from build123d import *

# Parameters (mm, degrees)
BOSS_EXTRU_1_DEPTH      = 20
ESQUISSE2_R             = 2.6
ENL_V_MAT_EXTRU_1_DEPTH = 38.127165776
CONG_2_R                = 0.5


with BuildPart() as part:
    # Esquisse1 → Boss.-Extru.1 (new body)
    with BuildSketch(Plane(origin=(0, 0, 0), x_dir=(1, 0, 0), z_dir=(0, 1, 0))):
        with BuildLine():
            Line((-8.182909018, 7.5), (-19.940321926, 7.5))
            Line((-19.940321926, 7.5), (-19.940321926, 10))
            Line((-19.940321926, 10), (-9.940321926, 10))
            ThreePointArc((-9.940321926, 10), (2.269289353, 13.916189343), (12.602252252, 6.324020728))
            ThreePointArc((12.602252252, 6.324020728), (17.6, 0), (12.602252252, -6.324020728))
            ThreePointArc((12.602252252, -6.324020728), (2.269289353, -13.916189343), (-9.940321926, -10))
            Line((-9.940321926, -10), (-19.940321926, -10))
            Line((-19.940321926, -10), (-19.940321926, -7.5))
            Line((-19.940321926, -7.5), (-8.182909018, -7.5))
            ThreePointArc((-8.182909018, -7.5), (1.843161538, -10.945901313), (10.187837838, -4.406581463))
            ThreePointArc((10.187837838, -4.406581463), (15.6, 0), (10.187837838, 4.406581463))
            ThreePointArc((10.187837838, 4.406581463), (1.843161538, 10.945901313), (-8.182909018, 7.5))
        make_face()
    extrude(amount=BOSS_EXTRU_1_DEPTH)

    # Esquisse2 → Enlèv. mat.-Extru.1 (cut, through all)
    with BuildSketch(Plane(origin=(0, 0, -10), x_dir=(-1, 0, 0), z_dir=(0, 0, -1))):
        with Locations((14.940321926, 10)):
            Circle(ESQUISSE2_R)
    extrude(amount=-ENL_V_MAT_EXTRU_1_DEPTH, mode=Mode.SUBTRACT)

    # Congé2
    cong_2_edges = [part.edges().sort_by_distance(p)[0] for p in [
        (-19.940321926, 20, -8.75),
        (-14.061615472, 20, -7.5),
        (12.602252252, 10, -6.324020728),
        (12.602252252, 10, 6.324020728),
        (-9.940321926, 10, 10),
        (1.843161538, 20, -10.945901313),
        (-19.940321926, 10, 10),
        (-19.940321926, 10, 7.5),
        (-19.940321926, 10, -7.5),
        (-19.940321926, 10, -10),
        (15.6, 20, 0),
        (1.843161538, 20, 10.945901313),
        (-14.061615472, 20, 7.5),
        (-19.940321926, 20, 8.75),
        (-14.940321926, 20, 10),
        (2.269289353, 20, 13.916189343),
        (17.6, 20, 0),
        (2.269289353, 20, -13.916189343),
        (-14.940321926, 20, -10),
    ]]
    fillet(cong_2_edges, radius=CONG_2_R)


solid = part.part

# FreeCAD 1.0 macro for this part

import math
import FreeCAD as App
import Part
import Sketcher


def edges_at(feature, points):
    """Names of the edges that pass closest to the given points."""
    edges = feature.Shape.Edges
    near = lambda p: min(range(len(edges)), key=lambda i: edges[i].distToShape(Part.Vertex(*p))[0])
    return sorted({f"Edge{near(p) + 1}" for p in points})

doc = App.newDocument("Part")
body = doc.addObject("PartDesign::Body", "Body")

# Sketch on XZ plane
sketch1 = doc.addObject("Sketcher::SketchObject", "Sketch")
body.addObject(sketch1)
sketch1.AttachmentSupport = (doc.XZ_Plane, [""])
sketch1.MapMode = "FlatFace"
sketch1.addGeometry(Part.LineSegment(App.Vector(-19.940322, -7.5, 0), App.Vector(-8.182909, -7.5, 0)), False)
sketch1.addGeometry(Part.ArcOfCircle(Part.Circle(App.Vector(0, 0, 0), App.Vector(0, 0, 1), 11.1), math.radians(-137.493358), math.radians(-23.390101)), False)
sketch1.addGeometry(Part.ArcOfCircle(Part.Circle(App.Vector(11.1, 0, 0), App.Vector(0, 0, 1), 4.5), math.radians(-101.69505), math.radians(101.69505)), False)
sketch1.addGeometry(Part.ArcOfCircle(Part.Circle(App.Vector(0, 0, 0), App.Vector(0, 0, 1), 11.1), math.radians(23.390101), math.radians(137.493358)), False)
sketch1.addGeometry(Part.LineSegment(App.Vector(-8.182909, 7.5, 0), App.Vector(-19.940322, 7.5, 0)), False)
sketch1.addGeometry(Part.LineSegment(App.Vector(-19.940322, 7.5, 0), App.Vector(-19.940322, 10, 0)), False)
sketch1.addGeometry(Part.LineSegment(App.Vector(-19.940322, 10, 0), App.Vector(-9.940322, 10, 0)), False)
sketch1.addGeometry(Part.ArcOfCircle(Part.Circle(App.Vector(0, 0, 0), App.Vector(0, 0, 1), 14.1), math.radians(26.648262), math.radians(134.828524)), False)
sketch1.addGeometry(Part.ArcOfCircle(Part.Circle(App.Vector(11.1, 0, 0), App.Vector(0, 0, 1), 6.5), math.radians(-76.637232), math.radians(76.637232)), False)
sketch1.addGeometry(Part.ArcOfCircle(Part.Circle(App.Vector(0, 0, 0), App.Vector(0, 0, 1), 14.1), math.radians(-134.828524), math.radians(-26.648262)), False)
sketch1.addGeometry(Part.LineSegment(App.Vector(-9.940322, -10, 0), App.Vector(-19.940322, -10, 0)), False)
sketch1.addGeometry(Part.LineSegment(App.Vector(-19.940322, -10, 0), App.Vector(-19.940322, -7.5, 0)), False)
sketch1.addConstraint(Sketcher.Constraint("Coincident", 0, 2, 1, 1))
sketch1.addConstraint(Sketcher.Constraint("Coincident", 1, 2, 2, 1))
sketch1.addConstraint(Sketcher.Constraint("Coincident", 2, 2, 3, 1))
sketch1.addConstraint(Sketcher.Constraint("Coincident", 3, 2, 4, 1))
sketch1.addConstraint(Sketcher.Constraint("Coincident", 4, 2, 5, 1))
sketch1.addConstraint(Sketcher.Constraint("Coincident", 5, 2, 6, 1))
sketch1.addConstraint(Sketcher.Constraint("Coincident", 6, 2, 7, 2))
sketch1.addConstraint(Sketcher.Constraint("Coincident", 7, 1, 8, 2))
sketch1.addConstraint(Sketcher.Constraint("Coincident", 8, 1, 9, 2))
sketch1.addConstraint(Sketcher.Constraint("Coincident", 9, 1, 10, 1))
sketch1.addConstraint(Sketcher.Constraint("Coincident", 10, 2, 11, 1))
sketch1.addConstraint(Sketcher.Constraint("Coincident", 11, 2, 0, 1))
sketch1.addConstraint(Sketcher.Constraint("Horizontal", 0))
sketch1.addConstraint(Sketcher.Constraint("Horizontal", 4))
sketch1.addConstraint(Sketcher.Constraint("Vertical", 5))
sketch1.addConstraint(Sketcher.Constraint("Horizontal", 6))
sketch1.addConstraint(Sketcher.Constraint("Horizontal", 10))
sketch1.addConstraint(Sketcher.Constraint("Vertical", 11))
sketch1.addConstraint(Sketcher.Constraint("Coincident", 1, 3, -1, 1))
sketch1.addConstraint(Sketcher.Constraint("Coincident", 3, 3, -1, 1))
sketch1.addConstraint(Sketcher.Constraint("Coincident", 7, 3, -1, 1))
sketch1.addConstraint(Sketcher.Constraint("Coincident", 9, 3, -1, 1))
sketch1.addConstraint(Sketcher.Constraint("Coincident", 8, 3, 2, 3))
sketch1.addConstraint(Sketcher.Constraint("Equal", 1, 3))
sketch1.addConstraint(Sketcher.Constraint("Equal", 7, 9))
sketch1.addConstraint(Sketcher.Constraint("Symmetric", 5, 2, 10, 2, -1))
sketch1.addConstraint(Sketcher.Constraint("PointOnObject", 2, 3, -1))
sketch1.addConstraint(Sketcher.Constraint("Vertical", 0, 2, 3, 2))
sketch1.addConstraint(Sketcher.Constraint("Radius", 1, 11.1))
sketch1.addConstraint(Sketcher.Constraint("Radius", 2, 4.5))
sketch1.addConstraint(Sketcher.Constraint("Radius", 7, 14.1))
sketch1.addConstraint(Sketcher.Constraint("Radius", 8, 6.5))
sketch1.addConstraint(Sketcher.Constraint("DistanceX", 6, 1, 6, 2, 10.0))
sketch1.addConstraint(Sketcher.Constraint("DistanceY", 5, 1, 5, 2, 2.5))
sketch1.addConstraint(Sketcher.Constraint("DistanceY", -1, 1, 5, 2, 10.0))
sketch1.addConstraint(Sketcher.Constraint("DistanceX", -1, 1, 2, 3, 11.1))
pad1 = doc.addObject("PartDesign::Pad", "Pad")
body.addObject(pad1)
pad1.Profile = sketch1
pad1.Length = 20
pad1.Reversed = True

# Sketch on XY plane
sketch2 = doc.addObject("Sketcher::SketchObject", "Sketch001")
body.addObject(sketch2)
sketch2.AttachmentSupport = (doc.XY_Plane, [""])
sketch2.MapMode = "FlatFace"
sketch2.AttachmentOffset = App.Placement(App.Vector(0, 0, -10), App.Rotation())
sketch2.addGeometry(Part.Circle(App.Vector(-14.940322, 10, 0), App.Vector(0, 0, 1), 2.6), False)
sketch2.addConstraint(Sketcher.Constraint("Diameter", 0, 5.2))
sketch2.addConstraint(Sketcher.Constraint("DistanceY", -1, 1, 0, 3, 10.0))
sketch2.addConstraint(Sketcher.Constraint("DistanceX", 0, 3, -1, 1, 14.940322))
pocket1 = doc.addObject("PartDesign::Pocket", "Pocket")
body.addObject(pocket1)
pocket1.Profile = sketch2
pocket1.Type = "ThroughAll"
pocket1.Reversed = True
doc.recompute()

fillet = doc.addObject("PartDesign::Fillet", "Fillet")
body.addObject(fillet)
fillet.Base = (pocket1, edges_at(pocket1, [
    (-19.94, 20, -8.75),
    (-14.062, 20, -7.5),
    (12.602, 10, -6.324),
    (12.602, 10, 6.324),
    (-9.94, 10, 10),
    (1.843, 20, -10.946),
    (-19.94, 10, 10),
    (-19.94, 10, 7.5),
    (-19.94, 10, -7.5),
    (-19.94, 10, -10),
    (15.6, 20, 0),
    (1.843, 20, 10.946),
    (-14.062, 20, 7.5),
    (-19.94, 20, 8.75),
    (-14.94, 20, 10),
    (2.269, 20, 13.916),
    (17.6, 20, 0),
    (2.269, 20, -13.916),
    (-14.94, 20, -10),
]))
fillet.Radius = 0.5

doc.recompute()
